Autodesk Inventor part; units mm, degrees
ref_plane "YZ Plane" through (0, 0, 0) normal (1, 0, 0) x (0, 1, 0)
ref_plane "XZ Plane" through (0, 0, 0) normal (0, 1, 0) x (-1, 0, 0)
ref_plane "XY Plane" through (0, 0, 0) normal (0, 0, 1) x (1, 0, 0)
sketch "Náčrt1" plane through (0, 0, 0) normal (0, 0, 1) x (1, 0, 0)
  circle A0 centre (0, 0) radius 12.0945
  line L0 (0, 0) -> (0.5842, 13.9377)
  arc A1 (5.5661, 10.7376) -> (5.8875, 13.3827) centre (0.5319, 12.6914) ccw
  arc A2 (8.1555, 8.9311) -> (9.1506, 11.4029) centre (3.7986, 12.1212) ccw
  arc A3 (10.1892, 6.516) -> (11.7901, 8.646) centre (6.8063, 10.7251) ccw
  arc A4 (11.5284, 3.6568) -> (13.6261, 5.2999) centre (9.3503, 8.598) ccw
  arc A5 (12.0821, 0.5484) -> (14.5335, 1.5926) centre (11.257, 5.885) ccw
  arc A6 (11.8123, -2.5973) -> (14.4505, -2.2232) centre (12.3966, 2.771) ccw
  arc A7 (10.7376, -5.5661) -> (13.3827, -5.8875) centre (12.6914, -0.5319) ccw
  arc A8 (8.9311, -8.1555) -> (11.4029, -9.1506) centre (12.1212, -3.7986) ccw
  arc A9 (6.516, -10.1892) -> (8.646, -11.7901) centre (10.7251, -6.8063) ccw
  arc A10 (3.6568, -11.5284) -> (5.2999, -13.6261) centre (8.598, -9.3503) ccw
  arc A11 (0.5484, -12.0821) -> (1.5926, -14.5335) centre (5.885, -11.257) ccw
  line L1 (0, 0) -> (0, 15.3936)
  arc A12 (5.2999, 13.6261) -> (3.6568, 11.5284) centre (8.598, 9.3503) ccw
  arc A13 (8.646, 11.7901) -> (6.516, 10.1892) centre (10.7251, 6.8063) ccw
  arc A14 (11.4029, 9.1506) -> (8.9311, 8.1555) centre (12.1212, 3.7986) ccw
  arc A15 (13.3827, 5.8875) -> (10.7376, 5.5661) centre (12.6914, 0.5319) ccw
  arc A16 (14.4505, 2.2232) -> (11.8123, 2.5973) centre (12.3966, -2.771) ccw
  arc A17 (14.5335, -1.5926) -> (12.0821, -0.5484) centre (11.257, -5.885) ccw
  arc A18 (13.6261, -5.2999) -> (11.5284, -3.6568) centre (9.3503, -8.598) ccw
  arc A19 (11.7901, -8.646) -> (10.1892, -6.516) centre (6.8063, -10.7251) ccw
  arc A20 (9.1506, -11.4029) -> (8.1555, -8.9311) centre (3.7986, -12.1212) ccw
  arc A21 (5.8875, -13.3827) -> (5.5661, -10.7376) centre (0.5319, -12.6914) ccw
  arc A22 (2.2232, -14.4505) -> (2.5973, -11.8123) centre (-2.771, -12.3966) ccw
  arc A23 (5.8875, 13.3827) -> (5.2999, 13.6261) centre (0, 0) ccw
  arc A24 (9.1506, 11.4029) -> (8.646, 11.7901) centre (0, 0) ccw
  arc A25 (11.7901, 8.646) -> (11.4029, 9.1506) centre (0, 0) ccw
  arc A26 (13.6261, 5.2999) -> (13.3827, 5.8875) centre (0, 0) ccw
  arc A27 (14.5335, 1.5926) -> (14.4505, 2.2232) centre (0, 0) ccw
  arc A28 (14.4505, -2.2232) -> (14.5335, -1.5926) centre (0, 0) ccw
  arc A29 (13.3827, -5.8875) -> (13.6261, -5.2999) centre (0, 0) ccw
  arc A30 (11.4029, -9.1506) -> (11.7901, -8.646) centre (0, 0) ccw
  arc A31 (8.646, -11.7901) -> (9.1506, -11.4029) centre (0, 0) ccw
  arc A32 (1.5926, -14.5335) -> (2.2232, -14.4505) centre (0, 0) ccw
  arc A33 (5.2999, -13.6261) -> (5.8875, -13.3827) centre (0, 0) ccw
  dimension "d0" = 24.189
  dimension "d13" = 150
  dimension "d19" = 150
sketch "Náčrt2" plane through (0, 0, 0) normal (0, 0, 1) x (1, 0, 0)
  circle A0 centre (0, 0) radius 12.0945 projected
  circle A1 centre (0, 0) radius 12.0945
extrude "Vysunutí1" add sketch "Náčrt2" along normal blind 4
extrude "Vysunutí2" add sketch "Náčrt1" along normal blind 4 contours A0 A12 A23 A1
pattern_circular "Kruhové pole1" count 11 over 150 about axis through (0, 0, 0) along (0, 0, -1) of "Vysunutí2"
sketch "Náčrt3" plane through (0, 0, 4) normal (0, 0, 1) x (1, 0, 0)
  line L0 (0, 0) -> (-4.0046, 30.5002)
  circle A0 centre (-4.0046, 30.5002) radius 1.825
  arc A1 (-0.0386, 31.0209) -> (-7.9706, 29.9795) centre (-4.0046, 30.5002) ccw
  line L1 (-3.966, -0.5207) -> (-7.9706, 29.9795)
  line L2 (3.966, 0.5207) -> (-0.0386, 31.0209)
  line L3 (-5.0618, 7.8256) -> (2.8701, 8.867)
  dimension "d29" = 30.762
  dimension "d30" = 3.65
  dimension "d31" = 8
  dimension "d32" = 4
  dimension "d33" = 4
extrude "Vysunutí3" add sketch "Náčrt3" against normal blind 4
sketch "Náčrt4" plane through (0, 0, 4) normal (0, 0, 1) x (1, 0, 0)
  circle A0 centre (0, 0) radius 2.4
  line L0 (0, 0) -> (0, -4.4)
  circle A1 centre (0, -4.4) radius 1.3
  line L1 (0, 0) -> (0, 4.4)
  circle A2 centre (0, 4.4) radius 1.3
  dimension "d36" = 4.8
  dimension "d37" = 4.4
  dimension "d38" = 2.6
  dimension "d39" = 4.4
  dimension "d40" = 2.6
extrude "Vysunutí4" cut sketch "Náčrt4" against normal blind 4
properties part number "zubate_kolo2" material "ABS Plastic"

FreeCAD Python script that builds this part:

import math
import FreeCAD as App
import Part
import Sketcher
from FreeCAD import Vector
Q = App.Units.Quantity

doc = App.newDocument("Part")
body = doc.addObject("PartDesign::Body", "Body")

# Sketch on XY plane
sketch1 = doc.addObject("Sketcher::SketchObject", "Sketch")
body.addObject(sketch1)
sketch1.AttachmentSupport = (doc.XY_Plane, [""])
sketch1.MapMode = "FlatFace"
sketch1.addGeometry(Part.Circle(Vector(0, 0, 0), Vector(0, 0, 1), 12), False)
sketch1.addConstraint([
    Sketcher.Constraint("Coincident", 0, 3, -1, 1),
    Sketcher.Constraint("Diameter", 0, Q("24.189 mm")),
])
pad1 = doc.addObject("PartDesign::Pad", "Pad")
body.addObject(pad1)
pad1.Profile = sketch1
pad1.Length = 4

# Sketch on XY plane
sketch2 = doc.addObject("Sketcher::SketchObject", "Sketch001")
body.addObject(sketch2)
sketch2.AttachmentSupport = (doc.XY_Plane, [""])
sketch2.MapMode = "FlatFace"
sketch2.addGeometry([
    Part.ArcOfCircle(Part.Circle(Vector(0, 0, 0), Vector(0, 0, 1), 12.1), math.radians(62.6), math.radians(72.4)),
    Part.ArcOfCircle(Part.Circle(Vector(0.5, 12.7, 0), Vector(0, 0, 1), 5.4), math.radians(-21), math.radians(7)),
    Part.ArcOfCircle(Part.Circle(Vector(0, 0, 0), Vector(0, 0, 1), 14.6), math.radians(66.25), math.radians(68.74)),
    Part.ArcOfCircle(Part.Circle(Vector(8.6, 9.4, 0), Vector(0, 0, 1), 5.4), math.radians(128), math.radians(156)),
], False)
sketch2.addConstraint([
    Sketcher.Constraint("Coincident", 0, 1, 1, 1),
    Sketcher.Constraint("Coincident", 1, 2, 2, 1),
    Sketcher.Constraint("Coincident", 2, 2, 3, 1),
    Sketcher.Constraint("Coincident", 3, 2, 0, 2),
    Sketcher.Constraint("Coincident", 0, 3, -1, 1),
    Sketcher.Constraint("Equal", 1, 3),
    Sketcher.Constraint("Radius", 0, Q("12.0945 mm")),
    Sketcher.Constraint("Radius", 1, Q("5.4 mm")),
    Sketcher.Constraint("DistanceX", -1, 1, 2, 2, Q("5.3 mm")),
    Sketcher.Constraint("Radius", 2, Q("14.6368 mm")),
    Sketcher.Constraint("DistanceX", -1, 1, 1, 3, Q("0.532 mm")),
    Sketcher.Constraint("DistanceY", 2, 3, -1, 1, Q("0.015 mm")),
    Sketcher.Constraint("DistanceX", -1, 1, 3, 3, Q("8.598 mm")),
    Sketcher.Constraint("DistanceX", -1, 1, 0, 1, Q("5.566 mm")),
    Sketcher.Constraint("DistanceY", -1, 1, 2, 2, Q("13.626 mm")),
])
pad2 = doc.addObject("PartDesign::Pad", "Pad001")
body.addObject(pad2)
pad2.Profile = sketch2
pad2.Length = 4
doc.recompute()

polarpattern = doc.addObject("PartDesign::PolarPattern", "PolarPattern")
body.addObject(polarpattern)
polarpattern.Originals = [pad2]
polarpattern.Axis = (doc.Z_Axis, [""])
polarpattern.Angle = 150
polarpattern.Occurrences = 11
polarpattern.Reversed = True
body.Tip = polarpattern

# Sketch on XY plane
sketch3 = doc.addObject("Sketcher::SketchObject", "Sketch002")
body.addObject(sketch3)
sketch3.AttachmentSupport = (doc.XY_Plane, [""])
sketch3.MapMode = "FlatFace"
sketch3.AttachmentOffset = App.Placement(Vector(0, 0, 4), App.Rotation())
sketch3.addGeometry([
    Part.LineSegment(Vector(-5.1, 7.8, 0), Vector(-1.1, 8.3, 0)),  # 0
    Part.LineSegment(Vector(-1.1, 8.3, 0), Vector(2.9, 8.9, 0)),  # 1
    Part.LineSegment(Vector(2.9, 8.9, 0), Vector(0, 31, 0)),  # 2
    Part.ArcOfCircle(Part.Circle(Vector(-4, 30.5, 0), Vector(0, 0, 1), 4), math.radians(7), math.radians(187)),  # 3
    Part.LineSegment(Vector(-8, 30, 0), Vector(-5.1, 7.8, 0)),  # 4
    Part.Circle(Vector(-4, 30.5, 0), Vector(0, 0, 1), 1.8),  # 5
], False)
sketch3.addConstraint([
    Sketcher.Constraint("Coincident", 0, 2, 1, 1),
    Sketcher.Constraint("Coincident", 1, 2, 2, 1),
    Sketcher.Constraint("Tangent", 2, 2, 3, 1),
    Sketcher.Constraint("Tangent", 3, 2, 4, 1),
    Sketcher.Constraint("Coincident", 4, 2, 0, 1),
    Sketcher.Constraint("Coincident", 5, 3, 3, 3),
    Sketcher.Constraint("Parallel", 0, 1),
    Sketcher.Constraint("Perpendicular", 1, 2),
    Sketcher.Constraint("Parallel", 2, 4),
    Sketcher.Constraint("Equal", 0, 1),
    Sketcher.Constraint("Radius", 3, Q("4 mm")),
    Sketcher.Constraint("Diameter", 5, Q("3.65 mm")),
    Sketcher.Constraint("Angle", 0, Q("7.4797 deg")),
    Sketcher.Constraint("DistanceX", -1, 1, 1, 2, Q("2.87 mm")),
    Sketcher.Constraint("Distance", 2, Q("22.344 mm")),
    Sketcher.Constraint("DistanceY", -1, 1, 1, 2, Q("8.867 mm")),
])
pad3 = doc.addObject("PartDesign::Pad", "Pad002")
body.addObject(pad3)
pad3.Profile = sketch3
pad3.Length = 4
pad3.Reversed = True

# Sketch on XY plane
sketch4 = doc.addObject("Sketcher::SketchObject", "Sketch003")
body.addObject(sketch4)
sketch4.AttachmentSupport = (doc.XY_Plane, [""])
sketch4.MapMode = "FlatFace"
sketch4.AttachmentOffset = App.Placement(Vector(0, 0, 4), App.Rotation())
sketch4.addGeometry([
    Part.Circle(Vector(0, 0, 0), Vector(0, 0, 1), 2.4),
    Part.Circle(Vector(0, -4.4, 0), Vector(0, 0, 1), 1.3),
    Part.Circle(Vector(0, 4.4, 0), Vector(0, 0, 1), 1.3),
], False)
sketch4.addConstraint([
    Sketcher.Constraint("Coincident", 0, 3, -1, 1),
    Sketcher.Constraint("Equal", 1, 2),
    Sketcher.Constraint("Symmetric", 1, 3, 2, 3, -1, 1),
    Sketcher.Constraint("PointOnObject", 1, 3, -2),
    Sketcher.Constraint("Diameter", 0, Q("4.8 mm")),
    Sketcher.Constraint("Diameter", 1, Q("2.6 mm")),
    Sketcher.Constraint("DistanceY", 1, 3, -1, 1, Q("4.4 mm")),
])
pocket1 = doc.addObject("PartDesign::Pocket", "Pocket")
body.addObject(pocket1)
pocket1.Profile = sketch4
pocket1.Length = 4

doc.recompute()
